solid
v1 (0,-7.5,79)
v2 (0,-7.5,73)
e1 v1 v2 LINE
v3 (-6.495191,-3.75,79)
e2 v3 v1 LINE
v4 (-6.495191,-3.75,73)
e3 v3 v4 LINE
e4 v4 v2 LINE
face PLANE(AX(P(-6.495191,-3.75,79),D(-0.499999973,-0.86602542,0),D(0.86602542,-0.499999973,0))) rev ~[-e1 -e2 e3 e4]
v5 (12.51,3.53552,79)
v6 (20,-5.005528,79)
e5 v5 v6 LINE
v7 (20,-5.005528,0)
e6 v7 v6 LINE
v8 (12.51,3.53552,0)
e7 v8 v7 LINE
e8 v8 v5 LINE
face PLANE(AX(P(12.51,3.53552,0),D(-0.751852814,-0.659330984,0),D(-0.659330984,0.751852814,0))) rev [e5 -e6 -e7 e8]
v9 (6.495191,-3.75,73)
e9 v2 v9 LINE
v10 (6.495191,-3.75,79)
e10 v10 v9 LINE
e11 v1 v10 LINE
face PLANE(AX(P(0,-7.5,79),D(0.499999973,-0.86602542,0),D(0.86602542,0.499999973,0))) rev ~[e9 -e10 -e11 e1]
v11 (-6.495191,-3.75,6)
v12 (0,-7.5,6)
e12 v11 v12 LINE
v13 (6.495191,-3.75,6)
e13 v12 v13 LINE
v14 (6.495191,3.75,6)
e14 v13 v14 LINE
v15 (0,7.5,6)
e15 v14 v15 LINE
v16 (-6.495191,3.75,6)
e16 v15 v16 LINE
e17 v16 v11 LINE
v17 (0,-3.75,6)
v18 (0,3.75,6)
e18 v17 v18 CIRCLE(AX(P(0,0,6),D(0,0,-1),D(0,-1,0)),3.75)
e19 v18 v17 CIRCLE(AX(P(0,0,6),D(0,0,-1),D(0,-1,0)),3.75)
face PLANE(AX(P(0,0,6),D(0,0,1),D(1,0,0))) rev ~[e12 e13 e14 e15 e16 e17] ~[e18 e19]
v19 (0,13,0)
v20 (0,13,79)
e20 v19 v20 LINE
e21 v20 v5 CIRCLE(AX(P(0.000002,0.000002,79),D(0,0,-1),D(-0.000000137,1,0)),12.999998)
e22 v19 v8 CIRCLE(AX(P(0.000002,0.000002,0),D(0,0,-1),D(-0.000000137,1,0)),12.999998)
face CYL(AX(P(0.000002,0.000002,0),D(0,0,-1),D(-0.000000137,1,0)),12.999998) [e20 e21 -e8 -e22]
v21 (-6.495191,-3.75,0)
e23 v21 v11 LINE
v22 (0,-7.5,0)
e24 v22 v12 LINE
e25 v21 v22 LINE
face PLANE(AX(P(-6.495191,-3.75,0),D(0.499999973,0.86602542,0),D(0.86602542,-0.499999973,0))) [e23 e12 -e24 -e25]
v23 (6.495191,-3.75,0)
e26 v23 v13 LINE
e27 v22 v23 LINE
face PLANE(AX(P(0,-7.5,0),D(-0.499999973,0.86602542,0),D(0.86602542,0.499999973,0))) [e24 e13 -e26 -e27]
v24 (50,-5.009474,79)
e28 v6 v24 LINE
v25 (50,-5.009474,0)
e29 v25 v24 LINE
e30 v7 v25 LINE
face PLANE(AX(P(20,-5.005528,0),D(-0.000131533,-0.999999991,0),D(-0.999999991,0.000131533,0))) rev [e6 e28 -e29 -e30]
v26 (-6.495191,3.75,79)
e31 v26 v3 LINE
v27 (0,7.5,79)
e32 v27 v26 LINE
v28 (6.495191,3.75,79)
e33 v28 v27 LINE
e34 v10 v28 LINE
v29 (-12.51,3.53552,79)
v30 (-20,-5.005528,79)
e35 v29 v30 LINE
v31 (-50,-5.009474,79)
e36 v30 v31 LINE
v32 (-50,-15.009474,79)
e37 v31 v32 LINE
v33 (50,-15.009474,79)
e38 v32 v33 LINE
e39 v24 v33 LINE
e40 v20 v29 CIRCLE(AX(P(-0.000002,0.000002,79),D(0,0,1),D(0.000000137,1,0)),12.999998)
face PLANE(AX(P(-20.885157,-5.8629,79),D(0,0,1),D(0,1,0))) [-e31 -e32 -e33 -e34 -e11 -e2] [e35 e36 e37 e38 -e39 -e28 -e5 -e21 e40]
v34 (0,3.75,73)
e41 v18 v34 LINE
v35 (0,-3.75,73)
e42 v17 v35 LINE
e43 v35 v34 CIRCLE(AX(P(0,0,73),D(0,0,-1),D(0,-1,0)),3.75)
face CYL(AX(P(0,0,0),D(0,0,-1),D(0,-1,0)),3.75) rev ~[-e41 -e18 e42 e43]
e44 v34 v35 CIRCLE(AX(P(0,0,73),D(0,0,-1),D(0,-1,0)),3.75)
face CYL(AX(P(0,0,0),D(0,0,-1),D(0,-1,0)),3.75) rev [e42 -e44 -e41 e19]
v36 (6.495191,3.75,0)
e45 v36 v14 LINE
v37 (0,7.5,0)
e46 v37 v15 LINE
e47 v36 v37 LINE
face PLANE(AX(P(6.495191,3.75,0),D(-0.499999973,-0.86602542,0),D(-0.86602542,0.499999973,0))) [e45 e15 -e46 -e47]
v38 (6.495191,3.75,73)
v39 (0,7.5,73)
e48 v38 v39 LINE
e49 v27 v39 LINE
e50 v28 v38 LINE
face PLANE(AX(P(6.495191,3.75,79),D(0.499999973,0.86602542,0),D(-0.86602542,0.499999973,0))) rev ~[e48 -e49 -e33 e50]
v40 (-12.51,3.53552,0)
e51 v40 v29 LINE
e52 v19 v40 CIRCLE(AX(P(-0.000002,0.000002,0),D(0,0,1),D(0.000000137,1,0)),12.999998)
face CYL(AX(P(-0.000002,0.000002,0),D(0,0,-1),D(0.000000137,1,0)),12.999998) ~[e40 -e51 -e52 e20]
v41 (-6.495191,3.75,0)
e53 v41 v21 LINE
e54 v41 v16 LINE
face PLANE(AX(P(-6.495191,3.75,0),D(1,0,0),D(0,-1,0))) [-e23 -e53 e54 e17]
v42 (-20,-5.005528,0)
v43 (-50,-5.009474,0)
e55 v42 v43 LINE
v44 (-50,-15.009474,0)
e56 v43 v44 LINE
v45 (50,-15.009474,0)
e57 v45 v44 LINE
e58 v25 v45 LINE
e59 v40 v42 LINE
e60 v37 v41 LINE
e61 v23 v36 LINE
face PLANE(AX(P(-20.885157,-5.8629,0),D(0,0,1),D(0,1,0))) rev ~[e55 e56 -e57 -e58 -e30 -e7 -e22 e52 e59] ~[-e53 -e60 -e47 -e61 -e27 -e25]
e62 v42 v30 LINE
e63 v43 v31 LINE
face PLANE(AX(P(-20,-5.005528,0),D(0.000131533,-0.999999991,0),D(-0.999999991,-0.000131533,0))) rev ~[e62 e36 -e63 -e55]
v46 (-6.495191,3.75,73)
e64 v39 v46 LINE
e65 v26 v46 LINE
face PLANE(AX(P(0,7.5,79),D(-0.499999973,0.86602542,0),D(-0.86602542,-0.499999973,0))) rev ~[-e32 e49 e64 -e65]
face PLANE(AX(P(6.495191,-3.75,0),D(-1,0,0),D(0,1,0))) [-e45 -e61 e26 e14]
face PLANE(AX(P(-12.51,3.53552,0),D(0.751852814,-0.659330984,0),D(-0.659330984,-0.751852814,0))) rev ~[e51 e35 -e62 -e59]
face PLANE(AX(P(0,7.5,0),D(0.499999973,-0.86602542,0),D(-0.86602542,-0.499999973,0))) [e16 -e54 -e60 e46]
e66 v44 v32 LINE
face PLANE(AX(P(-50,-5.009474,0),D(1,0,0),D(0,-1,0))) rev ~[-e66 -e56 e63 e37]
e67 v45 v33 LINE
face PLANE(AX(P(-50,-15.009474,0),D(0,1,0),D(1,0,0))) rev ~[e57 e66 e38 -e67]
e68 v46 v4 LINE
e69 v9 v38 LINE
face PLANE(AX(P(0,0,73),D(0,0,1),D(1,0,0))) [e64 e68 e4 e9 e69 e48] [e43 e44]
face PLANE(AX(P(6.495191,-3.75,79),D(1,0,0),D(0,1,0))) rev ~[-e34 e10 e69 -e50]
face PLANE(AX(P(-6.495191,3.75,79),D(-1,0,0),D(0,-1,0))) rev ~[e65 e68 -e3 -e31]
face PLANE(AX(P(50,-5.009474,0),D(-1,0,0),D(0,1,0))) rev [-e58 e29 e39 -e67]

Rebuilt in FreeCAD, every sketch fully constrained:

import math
import FreeCAD as App
import Part
import Sketcher

V = App.Vector
Q = App.Units.Quantity


def add_polygon(sketch, points):
    """Adds a closed chain of lines whose ends are joined by coincident constraints."""
    first, n = sketch.GeometryCount, len(points)
    for a, b in zip(points, points[1:] + points[:1]):
        sketch.addGeometry(Part.LineSegment(App.Vector(*a, 0), App.Vector(*b, 0)), False)
    for i in range(n):
        sketch.addConstraint(Sketcher.Constraint("Coincident", first + i, 2, first + (i + 1) % n, 1))

doc = App.newDocument("Part")
body = doc.addObject("PartDesign::Body", "Body")

sketch1 = body.newObject("Sketcher::SketchObject", "Sketch")
sketch1.AttachmentSupport = (doc.getObject("XY_Plane"), [""])
sketch1.MapMode = "FlatFace"
sketch1.addGeometry(Part.ArcOfCircle(Part.Circle(V(0, 0, 0), V(0, 0, 1), 13), math.radians(90), math.radians(164)), False)
sketch1.addGeometry(Part.LineSegment(V(-12.5, 3.5, 0), V(-20, -5, 0)), False)
sketch1.addGeometry(Part.LineSegment(V(-20, -5, 0), V(-50, -5, 0)), False)
sketch1.addGeometry(Part.LineSegment(V(-50, -5, 0), V(-50, -15, 0)), False)
sketch1.addGeometry(Part.LineSegment(V(-50, -15, 0), V(0, -15, 0)), False)
sketch1.addGeometry(Part.LineSegment(V(0, -15, 0), V(0, -3.8, 0)), False)
sketch1.addGeometry(Part.ArcOfCircle(Part.Circle(V(0, 0, 0), V(0, 0, 1), 3.8), math.radians(90), math.radians(270)), False)
sketch1.addGeometry(Part.LineSegment(V(0, 3.8, 0), V(0, 13, 0)), False)
sketch1.addConstraint(Sketcher.Constraint("Coincident", 0, 2, 1, 1))
sketch1.addConstraint(Sketcher.Constraint("Coincident", 1, 2, 2, 1))
sketch1.addConstraint(Sketcher.Constraint("Coincident", 2, 2, 3, 1))
sketch1.addConstraint(Sketcher.Constraint("Coincident", 3, 2, 4, 1))
sketch1.addConstraint(Sketcher.Constraint("Coincident", 4, 2, 5, 1))
sketch1.addConstraint(Sketcher.Constraint("Coincident", 5, 2, 6, 2))
sketch1.addConstraint(Sketcher.Constraint("Coincident", 6, 1, 7, 1))
sketch1.addConstraint(Sketcher.Constraint("Coincident", 7, 2, 0, 1))
sketch1.addConstraint(Sketcher.Constraint("Vertical", 3))
sketch1.addConstraint(Sketcher.Constraint("Horizontal", 4))
sketch1.addConstraint(Sketcher.Constraint("Vertical", 5))
sketch1.addConstraint(Sketcher.Constraint("Vertical", 7))
sketch1.addConstraint(Sketcher.Constraint("Coincident", 0, 3, -1, 1))
sketch1.addConstraint(Sketcher.Constraint("Coincident", 6, 3, -1, 1))
sketch1.addConstraint(Sketcher.Constraint("PointOnObject", 4, 2, -2))
sketch1.addConstraint(Sketcher.Constraint("PointOnObject", 6, 1, -2))
sketch1.addConstraint(Sketcher.Constraint("DistanceX", 4, 1, 4, 2, 50.0))
sketch1.addConstraint(Sketcher.Constraint("DistanceY", 3, 2, 3, 1, 10.0))
sketch1.addConstraint(Sketcher.Constraint("Radius", 6, 3.75))
sketch1.addConstraint(Sketcher.Constraint("Distance", 2, 30.0))
sketch1.addConstraint(Sketcher.Constraint("DistanceY", -1, 1, 7, 2, 13.0))
sketch1.addConstraint(Sketcher.Constraint("Distance", 1, 11.36))
sketch1.addConstraint(Sketcher.Constraint("DistanceX", 0, 2, -1, 1, 12.51))
sketch1.addConstraint(Sketcher.Constraint("DistanceY", 5, 1, 5, 2, 11.259474))
pad1 = body.newObject("PartDesign::Pad", "Pad")
pad1.Profile = sketch1
pad1.Length = 79
body2 = doc.addObject("PartDesign::Body", "Body001")
doc.recompute()

mirroring = doc.addObject("Part::Mirroring", "Mirroring")
mirroring.Source = body
mirroring.Base = V(0, 0, 0)
mirroring.Normal = V(1, 0, 0)
body2.BaseFeature = mirroring
doc.recompute()

boolean = body2.newObject("PartDesign::Boolean", "Boolean")
boolean.Type = "Fuse"
boolean.addObjects([body])

sketch2 = body2.newObject("Sketcher::SketchObject", "Sketch001")
sketch2.AttachmentSupport = (doc.getObject("XY_Plane001"), [""])
sketch2.MapMode = "FlatFace"
add_polygon(sketch2, [(0, -8), (6, -4), (6, 4), (0, 8), (-6, 4), (-6, -4)])
sketch2.addConstraint(Sketcher.Constraint("Vertical", 1))
sketch2.addConstraint(Sketcher.Constraint("Vertical", 4))
sketch2.addConstraint(Sketcher.Constraint("Symmetric", 0, 2, 3, 2, -1, 1))
sketch2.addConstraint(Sketcher.Constraint("Symmetric", 2, 2, 5, 2, -1, 1))
sketch2.addConstraint(Sketcher.Constraint("PointOnObject", 2, 2, -2))
sketch2.addConstraint(Sketcher.Constraint("Parallel", 2, 5))
sketch2.addConstraint(Sketcher.Constraint("Horizontal", 1, 2, 3, 2))
sketch2.addConstraint(Sketcher.Constraint("Angle", 0, Q("29.999998 deg")))
sketch2.addConstraint(Sketcher.Constraint("DistanceY", 1, 1, 1, 2, 7.5))
sketch2.addConstraint(Sketcher.Constraint("DistanceY", 5, 2, 2, 2, 15.0))
pocket1 = body2.newObject("PartDesign::Pocket", "Pocket")
pocket1.Profile = sketch2
pocket1.Length = 6
pocket1.Reversed = True

sketch3 = body2.newObject("Sketcher::SketchObject", "Sketch002")
sketch3.AttachmentSupport = (doc.getObject("XY_Plane001"), [""])
sketch3.MapMode = "FlatFace"
sketch3.AttachmentOffset = App.Placement(V(0, 0, 79), App.Rotation())
add_polygon(sketch3, [(0, -8), (6, -4), (6, 4), (0, 8), (-6, 4), (-6, -4)])
sketch3.addConstraint(Sketcher.Constraint("Vertical", 1))
sketch3.addConstraint(Sketcher.Constraint("Vertical", 4))
sketch3.addConstraint(Sketcher.Constraint("Symmetric", 0, 2, 3, 2, -1, 1))
sketch3.addConstraint(Sketcher.Constraint("Symmetric", 2, 2, 5, 2, -1, 1))
sketch3.addConstraint(Sketcher.Constraint("PointOnObject", 2, 2, -2))
sketch3.addConstraint(Sketcher.Constraint("Parallel", 2, 5))
sketch3.addConstraint(Sketcher.Constraint("Horizontal", 1, 2, 3, 2))
sketch3.addConstraint(Sketcher.Constraint("Angle", 0, Q("29.999998 deg")))
sketch3.addConstraint(Sketcher.Constraint("DistanceY", 1, 1, 1, 2, 7.5))
sketch3.addConstraint(Sketcher.Constraint("DistanceY", 5, 2, 2, 2, 15.0))
pocket2 = body2.newObject("PartDesign::Pocket", "Pocket001")
pocket2.Profile = sketch3
pocket2.Length = 6
mirroring.Visibility = False

doc.recompute()
